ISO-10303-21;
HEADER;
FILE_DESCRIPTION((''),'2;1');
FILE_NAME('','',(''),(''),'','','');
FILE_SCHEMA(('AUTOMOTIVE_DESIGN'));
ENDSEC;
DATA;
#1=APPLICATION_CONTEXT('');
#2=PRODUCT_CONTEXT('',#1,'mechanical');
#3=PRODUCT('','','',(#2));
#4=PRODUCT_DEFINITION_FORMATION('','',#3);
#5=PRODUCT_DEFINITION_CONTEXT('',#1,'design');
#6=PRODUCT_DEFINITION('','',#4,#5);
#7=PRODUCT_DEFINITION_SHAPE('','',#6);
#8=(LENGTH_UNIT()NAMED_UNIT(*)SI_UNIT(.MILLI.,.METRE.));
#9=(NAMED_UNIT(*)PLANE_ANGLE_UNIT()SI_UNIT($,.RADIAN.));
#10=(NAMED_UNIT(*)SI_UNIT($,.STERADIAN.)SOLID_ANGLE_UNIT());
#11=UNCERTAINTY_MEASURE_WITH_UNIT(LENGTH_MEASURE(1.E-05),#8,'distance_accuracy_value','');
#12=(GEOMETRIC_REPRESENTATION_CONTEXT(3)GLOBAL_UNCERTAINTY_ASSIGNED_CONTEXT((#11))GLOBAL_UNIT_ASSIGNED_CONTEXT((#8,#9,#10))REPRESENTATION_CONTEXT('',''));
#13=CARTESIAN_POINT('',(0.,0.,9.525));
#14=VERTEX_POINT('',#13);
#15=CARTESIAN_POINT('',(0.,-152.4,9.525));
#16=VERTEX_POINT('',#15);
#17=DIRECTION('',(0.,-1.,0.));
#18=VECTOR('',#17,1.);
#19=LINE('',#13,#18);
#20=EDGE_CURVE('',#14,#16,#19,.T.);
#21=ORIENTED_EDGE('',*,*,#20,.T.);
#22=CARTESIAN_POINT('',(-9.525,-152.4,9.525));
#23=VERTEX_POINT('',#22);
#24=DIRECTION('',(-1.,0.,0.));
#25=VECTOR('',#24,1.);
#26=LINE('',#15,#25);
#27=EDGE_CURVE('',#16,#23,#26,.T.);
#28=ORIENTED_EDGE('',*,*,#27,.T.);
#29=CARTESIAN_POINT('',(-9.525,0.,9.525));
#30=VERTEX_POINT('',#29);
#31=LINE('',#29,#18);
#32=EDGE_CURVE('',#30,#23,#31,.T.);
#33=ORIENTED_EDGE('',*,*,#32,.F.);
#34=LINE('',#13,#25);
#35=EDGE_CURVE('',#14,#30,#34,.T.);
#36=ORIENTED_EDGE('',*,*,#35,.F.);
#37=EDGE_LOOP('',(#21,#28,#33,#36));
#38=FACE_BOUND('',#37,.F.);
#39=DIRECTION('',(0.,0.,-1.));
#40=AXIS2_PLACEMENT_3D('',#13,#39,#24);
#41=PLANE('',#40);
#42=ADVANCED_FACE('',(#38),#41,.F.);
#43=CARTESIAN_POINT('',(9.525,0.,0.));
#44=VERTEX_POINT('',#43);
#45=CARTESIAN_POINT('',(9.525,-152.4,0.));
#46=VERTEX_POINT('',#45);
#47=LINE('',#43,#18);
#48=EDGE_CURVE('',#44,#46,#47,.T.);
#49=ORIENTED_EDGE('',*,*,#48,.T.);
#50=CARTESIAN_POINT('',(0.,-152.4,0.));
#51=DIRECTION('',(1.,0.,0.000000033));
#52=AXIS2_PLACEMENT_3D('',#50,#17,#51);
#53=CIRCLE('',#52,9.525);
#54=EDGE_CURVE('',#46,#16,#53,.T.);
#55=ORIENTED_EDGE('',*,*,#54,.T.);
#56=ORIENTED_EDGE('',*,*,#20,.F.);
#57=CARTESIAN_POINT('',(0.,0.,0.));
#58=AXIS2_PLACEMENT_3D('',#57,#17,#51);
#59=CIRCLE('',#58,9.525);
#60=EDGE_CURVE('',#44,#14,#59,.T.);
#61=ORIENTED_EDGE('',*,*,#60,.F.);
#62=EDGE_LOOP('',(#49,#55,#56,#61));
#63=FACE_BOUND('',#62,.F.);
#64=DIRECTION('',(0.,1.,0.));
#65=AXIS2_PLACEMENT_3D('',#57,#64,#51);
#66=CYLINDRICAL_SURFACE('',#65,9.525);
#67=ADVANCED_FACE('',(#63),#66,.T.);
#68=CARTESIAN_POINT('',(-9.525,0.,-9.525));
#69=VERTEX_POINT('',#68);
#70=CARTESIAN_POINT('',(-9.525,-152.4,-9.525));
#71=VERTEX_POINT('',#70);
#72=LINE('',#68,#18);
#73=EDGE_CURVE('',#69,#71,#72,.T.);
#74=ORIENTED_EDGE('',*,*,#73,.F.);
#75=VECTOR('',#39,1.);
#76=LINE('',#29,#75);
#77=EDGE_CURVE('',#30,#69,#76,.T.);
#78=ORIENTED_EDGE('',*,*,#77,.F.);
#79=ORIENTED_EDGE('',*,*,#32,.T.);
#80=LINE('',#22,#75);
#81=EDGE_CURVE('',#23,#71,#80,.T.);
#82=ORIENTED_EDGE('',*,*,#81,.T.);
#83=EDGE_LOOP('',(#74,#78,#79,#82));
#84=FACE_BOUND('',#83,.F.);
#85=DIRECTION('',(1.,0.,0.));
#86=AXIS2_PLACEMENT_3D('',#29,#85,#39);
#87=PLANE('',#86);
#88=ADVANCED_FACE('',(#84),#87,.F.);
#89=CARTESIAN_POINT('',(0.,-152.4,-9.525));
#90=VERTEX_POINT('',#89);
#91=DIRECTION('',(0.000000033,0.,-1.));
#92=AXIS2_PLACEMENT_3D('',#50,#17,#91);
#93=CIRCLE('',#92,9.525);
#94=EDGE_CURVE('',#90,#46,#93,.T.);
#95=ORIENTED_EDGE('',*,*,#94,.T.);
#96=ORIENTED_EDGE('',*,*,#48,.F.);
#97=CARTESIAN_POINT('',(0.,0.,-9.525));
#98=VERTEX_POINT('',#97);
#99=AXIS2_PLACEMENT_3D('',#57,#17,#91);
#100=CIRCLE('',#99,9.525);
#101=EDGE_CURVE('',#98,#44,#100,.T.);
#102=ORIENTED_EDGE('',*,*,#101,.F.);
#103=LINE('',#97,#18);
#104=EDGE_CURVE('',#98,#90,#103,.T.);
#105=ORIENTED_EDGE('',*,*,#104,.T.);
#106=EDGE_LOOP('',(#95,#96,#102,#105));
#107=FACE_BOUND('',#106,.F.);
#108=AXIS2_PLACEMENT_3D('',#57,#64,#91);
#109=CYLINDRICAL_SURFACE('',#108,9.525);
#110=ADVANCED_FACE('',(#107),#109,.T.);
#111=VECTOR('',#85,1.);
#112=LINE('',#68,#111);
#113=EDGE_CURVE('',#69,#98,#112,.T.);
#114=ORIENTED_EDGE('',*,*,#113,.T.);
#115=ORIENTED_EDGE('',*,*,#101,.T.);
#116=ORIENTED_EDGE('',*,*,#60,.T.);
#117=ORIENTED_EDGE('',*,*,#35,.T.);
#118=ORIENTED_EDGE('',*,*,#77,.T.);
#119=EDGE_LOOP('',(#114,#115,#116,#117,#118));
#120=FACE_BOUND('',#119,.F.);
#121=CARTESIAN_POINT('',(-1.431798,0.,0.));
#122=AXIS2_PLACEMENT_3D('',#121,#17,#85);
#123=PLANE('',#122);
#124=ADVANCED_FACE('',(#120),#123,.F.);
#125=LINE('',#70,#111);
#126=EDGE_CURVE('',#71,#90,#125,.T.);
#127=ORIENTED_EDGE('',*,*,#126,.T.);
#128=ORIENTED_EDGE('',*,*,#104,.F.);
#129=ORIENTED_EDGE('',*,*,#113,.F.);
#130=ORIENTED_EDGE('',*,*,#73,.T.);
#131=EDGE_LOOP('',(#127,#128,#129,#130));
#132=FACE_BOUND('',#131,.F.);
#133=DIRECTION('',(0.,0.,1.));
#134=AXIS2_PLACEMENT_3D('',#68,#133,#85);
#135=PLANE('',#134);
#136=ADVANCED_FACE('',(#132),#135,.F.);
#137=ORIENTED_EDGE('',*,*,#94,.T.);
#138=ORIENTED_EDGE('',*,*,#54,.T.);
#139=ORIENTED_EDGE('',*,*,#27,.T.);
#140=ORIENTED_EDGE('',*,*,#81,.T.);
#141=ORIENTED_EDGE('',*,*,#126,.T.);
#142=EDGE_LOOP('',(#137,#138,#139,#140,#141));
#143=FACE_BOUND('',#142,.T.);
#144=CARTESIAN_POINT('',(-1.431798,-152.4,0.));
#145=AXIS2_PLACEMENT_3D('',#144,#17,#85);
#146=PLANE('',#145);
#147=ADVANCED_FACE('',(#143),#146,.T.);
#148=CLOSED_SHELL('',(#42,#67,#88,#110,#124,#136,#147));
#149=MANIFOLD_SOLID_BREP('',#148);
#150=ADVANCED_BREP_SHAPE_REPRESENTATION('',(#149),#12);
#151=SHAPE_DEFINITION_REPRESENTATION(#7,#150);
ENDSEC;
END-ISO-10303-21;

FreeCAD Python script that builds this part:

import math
import FreeCAD as App
import Part
import Sketcher
Q = App.Units.Quantity

doc = App.newDocument("Part")
body = doc.addObject("PartDesign::Body", "Body")

# Sketch on XZ plane
sketch1 = body.newObject("Sketcher::SketchObject", "Sketch")
sketch1.AttachmentSupport = (doc.getObject("XZ_Plane"), [""])
sketch1.MapMode = "FlatFace"
sketch1.addGeometry([
    Part.LineSegment(App.Vector(0, 10, 0), App.Vector(-10, 10, 0)),  # 0
    Part.LineSegment(App.Vector(-10, 10, 0), App.Vector(-10, -10, 0)),  # 1
    Part.LineSegment(App.Vector(-10, -10, 0), App.Vector(0, -10, 0)),  # 2
    Part.ArcOfCircle(Part.Circle(App.Vector(0, 0, 0), App.Vector(0, 0, 1), 10), math.radians(-90), math.radians(0)),  # 3
    Part.ArcOfCircle(Part.Circle(App.Vector(0, 0, 0), App.Vector(0, 0, 1), 10), math.radians(0), math.radians(90)),  # 4
], False)
sketch1.addConstraint([
    Sketcher.Constraint("Coincident", 0, 2, 1, 1),
    Sketcher.Constraint("Coincident", 1, 2, 2, 1),
    Sketcher.Constraint("Tangent", 2, 2, 3, 1),
    Sketcher.Constraint("Tangent", 3, 2, 4, 1),
    Sketcher.Constraint("Tangent", 4, 2, 0, 1),
    Sketcher.Constraint("Horizontal", 0),
    Sketcher.Constraint("Vertical", 1),
    Sketcher.Constraint("Horizontal", 2),
    Sketcher.Constraint("Coincident", 3, 3, -1, 1),
    Sketcher.Constraint("Equal", 3, 4),
    Sketcher.Constraint("PointOnObject", 3, 2, -1),
    Sketcher.Constraint("Radius", 3, Q("0.375 in")),
    Sketcher.Constraint("DistanceX", 0, 2, 0, 1, Q("0.375 in")),
])
pad1 = body.newObject("PartDesign::Pad", "Pad")
pad1.Profile = sketch1
pad1.Length = Q("6 in")

doc.recompute()
